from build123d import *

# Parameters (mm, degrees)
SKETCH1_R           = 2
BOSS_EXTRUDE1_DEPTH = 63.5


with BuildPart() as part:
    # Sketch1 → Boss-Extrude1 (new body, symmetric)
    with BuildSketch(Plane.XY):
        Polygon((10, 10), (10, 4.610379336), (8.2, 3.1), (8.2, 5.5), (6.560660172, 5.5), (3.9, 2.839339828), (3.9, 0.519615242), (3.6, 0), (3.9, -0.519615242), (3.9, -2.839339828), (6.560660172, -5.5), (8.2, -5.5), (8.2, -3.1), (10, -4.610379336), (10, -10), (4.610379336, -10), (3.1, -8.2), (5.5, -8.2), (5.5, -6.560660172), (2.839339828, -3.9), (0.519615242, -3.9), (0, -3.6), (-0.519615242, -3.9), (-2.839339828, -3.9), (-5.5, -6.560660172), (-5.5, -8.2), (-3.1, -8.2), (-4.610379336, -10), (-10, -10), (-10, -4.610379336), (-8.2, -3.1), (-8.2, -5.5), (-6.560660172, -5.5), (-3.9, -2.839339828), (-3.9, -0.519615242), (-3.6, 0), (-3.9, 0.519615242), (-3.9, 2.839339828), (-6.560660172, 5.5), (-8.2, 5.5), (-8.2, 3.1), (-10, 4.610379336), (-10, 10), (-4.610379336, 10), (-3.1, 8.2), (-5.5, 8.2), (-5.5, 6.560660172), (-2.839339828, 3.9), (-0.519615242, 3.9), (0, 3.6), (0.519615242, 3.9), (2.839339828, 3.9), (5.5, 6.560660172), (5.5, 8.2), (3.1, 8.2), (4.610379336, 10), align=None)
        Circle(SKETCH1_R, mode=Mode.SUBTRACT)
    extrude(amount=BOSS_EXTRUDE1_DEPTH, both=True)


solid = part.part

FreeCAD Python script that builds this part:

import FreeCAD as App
import Part
import Sketcher
from FreeCAD import Vector
Q = App.Units.Quantity


def add_polygon(sketch, points):
    """Adds a closed chain of lines whose ends are joined by coincident constraints."""
    first, n = sketch.GeometryCount, len(points)
    for a, b in zip(points, points[1:] + points[:1]):
        sketch.addGeometry(Part.LineSegment(App.Vector(*a, 0), App.Vector(*b, 0)), False)
    for i in range(n):
        sketch.addConstraint(Sketcher.Constraint("Coincident", first + i, 2, first + (i + 1) % n, 1))

doc = App.newDocument("Part")
body = doc.addObject("PartDesign::Body", "Body")

sketch1 = body.newObject("Sketcher::SketchObject", "Sketch")
sketch1.AttachmentSupport = (doc.getObject("XY_Plane"), [""])
sketch1.MapMode = "FlatFace"
add_polygon(sketch1, [(10, 4.6), (10, 10), (4.6, 10), (3.1, 8.2), (5.5, 8.2), (5.5, 6.6), (2.8, 3.9), (0.5, 3.9), (0, 3.6), (-0.5, 3.9), (-2.8, 3.9), (-5.5, 6.6), (-5.5, 8.2), (-3.1, 8.2), (-4.6, 10), (-10, 10), (-10, 4.6), (-8.2, 3.1), (-8.2, 5.5), (-6.6, 5.5), (-3.9, 2.8), (-3.9, 0.5), (-3.6, 0), (-3.9, -0.5), (-3.9, -2.8), (-6.6, -5.5), (-8.2, -5.5), (-8.2, -3.1), (-10, -4.6), (-10, -10), (-4.6, -10), (-3.1, -8.2), (-5.5, -8.2), (-5.5, -6.6), (-2.8, -3.9), (-0.5, -3.9), (0, -3.6), (0.5, -3.9), (2.8, -3.9), (5.5, -6.6), (5.5, -8.2), (3.1, -8.2), (4.6, -10), (10, -10), (10, -4.6), (8.2, -3.1), (8.2, -5.5), (6.6, -5.5), (3.9, -2.8), (3.9, -0.5), (3.6, 0), (3.9, 0.5), (3.9, 2.8), (6.6, 5.5), (8.2, 5.5), (8.2, 3.1)])
sketch1.addGeometry(Part.Circle(Vector(0, 0, 0), Vector(0, 0, 1), 2), False)
sketch1.addConstraint([
    Sketcher.Constraint("Vertical", 0),
    Sketcher.Constraint("Horizontal", 1),
    Sketcher.Constraint("Horizontal", 3),
    Sketcher.Constraint("Vertical", 4),
    Sketcher.Constraint("Horizontal", 6),
    Sketcher.Constraint("Horizontal", 9),
    Sketcher.Constraint("Vertical", 11),
    Sketcher.Constraint("Horizontal", 12),
    Sketcher.Constraint("Horizontal", 14),
    Sketcher.Constraint("Vertical", 15),
    Sketcher.Constraint("Vertical", 17),
    Sketcher.Constraint("Horizontal", 18),
    Sketcher.Constraint("Vertical", 20),
    Sketcher.Constraint("Vertical", 23),
    Sketcher.Constraint("Horizontal", 25),
    Sketcher.Constraint("Vertical", 26),
    Sketcher.Constraint("Vertical", 28),
    Sketcher.Constraint("Horizontal", 29),
    Sketcher.Constraint("Horizontal", 31),
    Sketcher.Constraint("Vertical", 32),
    Sketcher.Constraint("Horizontal", 34),
    Sketcher.Constraint("Horizontal", 37),
    Sketcher.Constraint("Vertical", 39),
    Sketcher.Constraint("Horizontal", 40),
    Sketcher.Constraint("Horizontal", 42),
    Sketcher.Constraint("Vertical", 43),
    Sketcher.Constraint("Vertical", 45),
    Sketcher.Constraint("Horizontal", 46),
    Sketcher.Constraint("Vertical", 48),
    Sketcher.Constraint("Vertical", 51),
    Sketcher.Constraint("Horizontal", 53),
    Sketcher.Constraint("Vertical", 54),
    Sketcher.Constraint("Coincident", 56, 3, -1, 1),
    Sketcher.Constraint("Symmetric", 0, 2, 28, 2, -1, 1),
    Sketcher.Constraint("Symmetric", 2, 2, 30, 2, -1, 1),
    Sketcher.Constraint("Symmetric", 4, 2, 32, 2, -1, 1),
    Sketcher.Constraint("Symmetric", 5, 2, 33, 2, -1, 1),
    Sketcher.Constraint("Symmetric", 7, 2, 35, 2, -1, 1),
    Sketcher.Constraint("Symmetric", 8, 2, 36, 2, -1, 1),
    Sketcher.Constraint("Symmetric", 10, 2, 38, 2, -1, 1),
    Sketcher.Constraint("Symmetric", 12, 2, 40, 2, -1, 1),
    Sketcher.Constraint("Symmetric", 13, 2, 41, 2, -1, 1),
    Sketcher.Constraint("Symmetric", 15, 2, 43, 2, -1, 1),
    Sketcher.Constraint("Symmetric", 16, 2, 44, 2, -1, 1),
    Sketcher.Constraint("Symmetric", 18, 2, 46, 2, -1, 1),
    Sketcher.Constraint("Symmetric", 19, 2, 47, 2, -1, 1),
    Sketcher.Constraint("Symmetric", 21, 2, 49, 2, -1, 1),
    Sketcher.Constraint("Symmetric", 22, 2, 50, 2, -1, 1),
    Sketcher.Constraint("Symmetric", 24, 2, 52, 2, -1, 1),
    Sketcher.Constraint("Symmetric", 26, 2, 54, 2, -1, 1),
    Sketcher.Constraint("Symmetric", 6, 2, 8, 2, -2),
    Sketcher.Constraint("Symmetric", 4, 2, 10, 2, -2),
    Sketcher.Constraint("Symmetric", 2, 2, 12, 2, -2),
    Sketcher.Constraint("Symmetric", 1, 2, 13, 2, -2),
    Sketcher.Constraint("Symmetric", 27, 2, 43, 2, -2),
    Sketcher.Constraint("Symmetric", 26, 2, 44, 2, -2),
    Sketcher.Constraint("Symmetric", 24, 2, 46, 2, -2),
    Sketcher.Constraint("Symmetric", 23, 2, 47, 2, -2),
    Sketcher.Constraint("PointOnObject", 7, 2, -2),
    Sketcher.Constraint("PointOnObject", 21, 2, -1),
    Sketcher.Constraint("Perpendicular", 5, 10),
    Sketcher.Constraint("Perpendicular", 2, 16),
    Sketcher.Constraint("Parallel", 10, 19),
    Sketcher.Constraint("Perpendicular", 7, 21),
    Sketcher.Constraint("Perpendicular", 8, 22),
    Sketcher.Constraint("Perpendicular", 19, 24),
    Sketcher.Constraint("Perpendicular", 16, 30),
    Sketcher.Constraint("Perpendicular", 21, 35),
    Sketcher.Constraint("Perpendicular", 33, 38),
    Sketcher.Constraint("Perpendicular", 35, 49),
    Sketcher.Constraint("Perpendicular", 47, 52),
    Sketcher.Constraint("Perpendicular", 41, 55),
    Sketcher.Constraint("Equal", 42, 0),
    Sketcher.Constraint("Equal", 53, 4),
    Sketcher.Constraint("Equal", 40, 17),
    Sketcher.Constraint("Equal", 37, 20),
    Sketcher.Constraint("Equal", 13, 16),
    Sketcher.Constraint("Equal", 10, 19),
    Sketcher.Constraint("Equal", 8, 21),
    Sketcher.Constraint("Diameter", 56, 4.0),
    Sketcher.Constraint("Angle", 2, Q("-130 deg")),
    Sketcher.Constraint("Angle", 7, Q("-150 deg")),
    Sketcher.Constraint("DistanceX", 3, 1, 3, 2, 2.4),
    Sketcher.Constraint("DistanceX", -1, 1, 0, 2, 10.0),
    Sketcher.Constraint("Distance", 7, 0.6),
    Sketcher.Constraint("DistanceX", -1, 1, 2, 2, 3.1),
    Sketcher.Constraint("DistanceY", -1, 1, 2, 2, 8.2),
    Sketcher.Constraint("DistanceY", -1, 1, 5, 2, 3.9),
    Sketcher.Constraint("DistanceX", 18, 1, 18, 2, 1.63934),
])
pad1 = body.newObject("PartDesign::Pad", "Pad")
pad1.Profile = sketch1
pad1.Length = 127
pad1.Midplane = True

doc.recompute()
